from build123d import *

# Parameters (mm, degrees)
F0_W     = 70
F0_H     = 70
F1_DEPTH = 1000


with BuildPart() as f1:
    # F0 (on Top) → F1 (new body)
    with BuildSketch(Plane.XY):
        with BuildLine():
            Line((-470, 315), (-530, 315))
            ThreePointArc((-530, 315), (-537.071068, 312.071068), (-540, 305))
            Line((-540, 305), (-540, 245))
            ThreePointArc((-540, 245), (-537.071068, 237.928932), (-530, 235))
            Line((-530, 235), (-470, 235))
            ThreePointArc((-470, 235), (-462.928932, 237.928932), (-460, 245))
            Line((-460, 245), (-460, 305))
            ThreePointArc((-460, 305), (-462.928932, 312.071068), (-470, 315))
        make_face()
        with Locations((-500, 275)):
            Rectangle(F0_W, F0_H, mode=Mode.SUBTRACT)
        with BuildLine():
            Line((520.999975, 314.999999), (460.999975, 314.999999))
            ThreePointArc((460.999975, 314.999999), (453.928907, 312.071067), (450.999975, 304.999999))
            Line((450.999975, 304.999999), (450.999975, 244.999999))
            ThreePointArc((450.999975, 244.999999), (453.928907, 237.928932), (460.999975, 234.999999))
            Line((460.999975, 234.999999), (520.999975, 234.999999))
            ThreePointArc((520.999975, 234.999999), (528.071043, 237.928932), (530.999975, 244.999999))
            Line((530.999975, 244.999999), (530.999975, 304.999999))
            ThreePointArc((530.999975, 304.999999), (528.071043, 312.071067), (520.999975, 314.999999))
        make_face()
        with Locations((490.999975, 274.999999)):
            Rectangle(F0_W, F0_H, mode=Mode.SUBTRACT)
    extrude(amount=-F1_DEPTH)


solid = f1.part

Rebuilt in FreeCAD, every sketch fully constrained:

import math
import FreeCAD as App
import Part
import Sketcher
from FreeCAD import Vector
Q = App.Units.Quantity

doc = App.newDocument("Part")
body = doc.addObject("PartDesign::Body", "Body")
body.AllowCompound = True

sketch1 = body.newObject("Sketcher::SketchObject", "Sketch")
sketch1.AttachmentSupport = (doc.getObject("XY_Plane"), [""])
sketch1.MapMode = "FlatFace"
sketch1.addGeometry([
    Part.LineSegment(Vector(-470, 315, 0), Vector(-530, 315, 0)),
    Part.ArcOfCircle(Part.Circle(Vector(-530.000001, 305.000001, 0), Vector(0, 0, 1), 9.999999), math.radians(89.999996), math.radians(180.000004)),
    Part.LineSegment(Vector(-540, 305, 0), Vector(-540, 245, 0)),
    Part.ArcOfCircle(Part.Circle(Vector(-530.000001, 244.999999, 0), Vector(0, 0, 1), 9.999999), math.radians(179.999996), math.radians(270.000004)),
    Part.LineSegment(Vector(-530, 235, 0), Vector(-470, 235, 0)),
    Part.ArcOfCircle(Part.Circle(Vector(-469.999999, 244.999999, 0), Vector(0, 0, 1), 9.999999), math.radians(-90.000004), math.radians(0.000004)),
    Part.LineSegment(Vector(-460, 245, 0), Vector(-460, 305, 0)),
    Part.ArcOfCircle(Part.Circle(Vector(-469.999999, 305.000001, 0), Vector(0, 0, 1), 9.999999), math.radians(-0.000004), math.radians(90.000004)),
    Part.LineSegment(Vector(-465, 240, 0), Vector(-535, 240, 0)),
    Part.LineSegment(Vector(-535, 240, 0), Vector(-535, 310, 0)),
    Part.LineSegment(Vector(-535, 310, 0), Vector(-465, 310, 0)),
    Part.LineSegment(Vector(-465, 310, 0), Vector(-465, 240, 0)),
    Part.LineSegment(Vector(520.999975, 314.999999, 0), Vector(460.999975, 314.999999, 0)),
    Part.ArcOfCircle(Part.Circle(Vector(460.999974, 305, 0), Vector(0, 0, 1), 9.999999), math.radians(89.999996), math.radians(180.000004)),
    Part.LineSegment(Vector(450.999975, 304.999999, 0), Vector(450.999975, 244.999999, 0)),
    Part.ArcOfCircle(Part.Circle(Vector(460.999976, 245, 0), Vector(0, 0, 1), 10.000001), math.radians(-179.999994), math.radians(-90.000006)),
    Part.LineSegment(Vector(460.999975, 234.999999, 0), Vector(520.999975, 234.999999, 0)),
    Part.ArcOfCircle(Part.Circle(Vector(520.999974, 245, 0), Vector(0, 0, 1), 10.000001), math.radians(-89.999994), math.radians(-0.000006)),
    Part.LineSegment(Vector(530.999975, 244.999999, 0), Vector(530.999975, 304.999999, 0)),
    Part.ArcOfCircle(Part.Circle(Vector(520.999976, 305, 0), Vector(0, 0, 1), 9.999999), math.radians(-0.000004), math.radians(90.000004)),
    Part.LineSegment(Vector(525.999975, 239.999999, 0), Vector(455.999975, 239.999999, 0)),
    Part.LineSegment(Vector(455.999975, 239.999999, 0), Vector(455.999975, 309.999999, 0)),
    Part.LineSegment(Vector(455.999975, 309.999999, 0), Vector(525.999975, 309.999999, 0)),
    Part.LineSegment(Vector(525.999975, 309.999999, 0), Vector(525.999975, 239.999999, 0)),
], False)
sketch1.addConstraint([
    Sketcher.Constraint("Tangent", 0, 2, 1, 1),
    Sketcher.Constraint("Tangent", 1, 2, 2, 1),
    Sketcher.Constraint("Tangent", 2, 2, 3, 1),
    Sketcher.Constraint("Tangent", 3, 2, 4, 1),
    Sketcher.Constraint("Tangent", 4, 2, 5, 1),
    Sketcher.Constraint("Tangent", 5, 2, 6, 1),
    Sketcher.Constraint("Tangent", 6, 2, 7, 1),
    Sketcher.Constraint("Tangent", 7, 2, 0, 1),
    Sketcher.Constraint("Coincident", 8, 2, 9, 1),
    Sketcher.Constraint("Coincident", 9, 2, 10, 1),
    Sketcher.Constraint("Coincident", 10, 2, 11, 1),
    Sketcher.Constraint("Coincident", 11, 2, 8, 1),
    Sketcher.Constraint("Tangent", 12, 2, 13, 1),
    Sketcher.Constraint("Tangent", 13, 2, 14, 1),
    Sketcher.Constraint("Tangent", 14, 2, 15, 1),
    Sketcher.Constraint("Tangent", 15, 2, 16, 1),
    Sketcher.Constraint("Tangent", 16, 2, 17, 1),
    Sketcher.Constraint("Tangent", 17, 2, 18, 1),
    Sketcher.Constraint("Tangent", 18, 2, 19, 1),
    Sketcher.Constraint("Tangent", 19, 2, 12, 1),
    Sketcher.Constraint("Coincident", 20, 2, 21, 1),
    Sketcher.Constraint("Coincident", 21, 2, 22, 1),
    Sketcher.Constraint("Coincident", 22, 2, 23, 1),
    Sketcher.Constraint("Coincident", 23, 2, 20, 1),
    Sketcher.Constraint("Horizontal", 0),
    Sketcher.Constraint("Vertical", 2),
    Sketcher.Constraint("Horizontal", 4),
    Sketcher.Constraint("Vertical", 6),
    Sketcher.Constraint("Horizontal", 8),
    Sketcher.Constraint("Vertical", 9),
    Sketcher.Constraint("Horizontal", 10),
    Sketcher.Constraint("Vertical", 11),
    Sketcher.Constraint("Horizontal", 12),
    Sketcher.Constraint("Vertical", 14),
    Sketcher.Constraint("Horizontal", 16),
    Sketcher.Constraint("Vertical", 18),
    Sketcher.Constraint("Horizontal", 20),
    Sketcher.Constraint("Vertical", 21),
    Sketcher.Constraint("Horizontal", 22),
    Sketcher.Constraint("Vertical", 23),
    Sketcher.Constraint("Equal", 1, 3),
    Sketcher.Constraint("Equal", 3, 5),
    Sketcher.Constraint("Equal", 5, 7),
    Sketcher.Constraint("Equal", 7, 13),
    Sketcher.Constraint("Equal", 13, 15),
    Sketcher.Constraint("Equal", 15, 17),
    Sketcher.Constraint("Equal", 17, 19),
    Sketcher.Constraint("Horizontal", 7, 3, 13, 3),
    Sketcher.Constraint("Horizontal", 5, 3, 15, 3),
    Sketcher.Constraint("Horizontal", 11, 2, 20, 2),
    Sketcher.Constraint("Horizontal", 10, 2, 21, 2),
    Sketcher.Constraint("Equal", 4, 12),
    Sketcher.Constraint("Equal", 10, 20),
    Sketcher.Constraint("Equal", 16, 2),
    Sketcher.Constraint("Equal", 22, 9),
    Sketcher.Constraint("Radius", 1, Q("9.999999 mm")),
    Sketcher.Constraint("DistanceX", 0, 2, 0, 1, Q("60 mm")),
    Sketcher.Constraint("DistanceX", 8, 2, 8, 1, Q("70 mm")),
    Sketcher.Constraint("DistanceX", 1, 3, -1, 1, Q("530.000001 mm")),
    Sketcher.Constraint("DistanceY", -1, 1, 1, 3, Q("305.000001 mm")),
    Sketcher.Constraint("DistanceX", 8, 2, -1, 1, Q("535 mm")),
    Sketcher.Constraint("DistanceY", -1, 1, 8, 2, Q("240 mm")),
    Sketcher.Constraint("DistanceX", 20, 2, 15, 2, Q("5 mm")),
    Sketcher.Constraint("DistanceX", -1, 1, 13, 3, Q("460.999974 mm")),
])
pad1 = body.newObject("PartDesign::Pad", "Pad")
pad1.Profile = sketch1
pad1.Length = 1000
pad1.Reversed = True

doc.recompute()
